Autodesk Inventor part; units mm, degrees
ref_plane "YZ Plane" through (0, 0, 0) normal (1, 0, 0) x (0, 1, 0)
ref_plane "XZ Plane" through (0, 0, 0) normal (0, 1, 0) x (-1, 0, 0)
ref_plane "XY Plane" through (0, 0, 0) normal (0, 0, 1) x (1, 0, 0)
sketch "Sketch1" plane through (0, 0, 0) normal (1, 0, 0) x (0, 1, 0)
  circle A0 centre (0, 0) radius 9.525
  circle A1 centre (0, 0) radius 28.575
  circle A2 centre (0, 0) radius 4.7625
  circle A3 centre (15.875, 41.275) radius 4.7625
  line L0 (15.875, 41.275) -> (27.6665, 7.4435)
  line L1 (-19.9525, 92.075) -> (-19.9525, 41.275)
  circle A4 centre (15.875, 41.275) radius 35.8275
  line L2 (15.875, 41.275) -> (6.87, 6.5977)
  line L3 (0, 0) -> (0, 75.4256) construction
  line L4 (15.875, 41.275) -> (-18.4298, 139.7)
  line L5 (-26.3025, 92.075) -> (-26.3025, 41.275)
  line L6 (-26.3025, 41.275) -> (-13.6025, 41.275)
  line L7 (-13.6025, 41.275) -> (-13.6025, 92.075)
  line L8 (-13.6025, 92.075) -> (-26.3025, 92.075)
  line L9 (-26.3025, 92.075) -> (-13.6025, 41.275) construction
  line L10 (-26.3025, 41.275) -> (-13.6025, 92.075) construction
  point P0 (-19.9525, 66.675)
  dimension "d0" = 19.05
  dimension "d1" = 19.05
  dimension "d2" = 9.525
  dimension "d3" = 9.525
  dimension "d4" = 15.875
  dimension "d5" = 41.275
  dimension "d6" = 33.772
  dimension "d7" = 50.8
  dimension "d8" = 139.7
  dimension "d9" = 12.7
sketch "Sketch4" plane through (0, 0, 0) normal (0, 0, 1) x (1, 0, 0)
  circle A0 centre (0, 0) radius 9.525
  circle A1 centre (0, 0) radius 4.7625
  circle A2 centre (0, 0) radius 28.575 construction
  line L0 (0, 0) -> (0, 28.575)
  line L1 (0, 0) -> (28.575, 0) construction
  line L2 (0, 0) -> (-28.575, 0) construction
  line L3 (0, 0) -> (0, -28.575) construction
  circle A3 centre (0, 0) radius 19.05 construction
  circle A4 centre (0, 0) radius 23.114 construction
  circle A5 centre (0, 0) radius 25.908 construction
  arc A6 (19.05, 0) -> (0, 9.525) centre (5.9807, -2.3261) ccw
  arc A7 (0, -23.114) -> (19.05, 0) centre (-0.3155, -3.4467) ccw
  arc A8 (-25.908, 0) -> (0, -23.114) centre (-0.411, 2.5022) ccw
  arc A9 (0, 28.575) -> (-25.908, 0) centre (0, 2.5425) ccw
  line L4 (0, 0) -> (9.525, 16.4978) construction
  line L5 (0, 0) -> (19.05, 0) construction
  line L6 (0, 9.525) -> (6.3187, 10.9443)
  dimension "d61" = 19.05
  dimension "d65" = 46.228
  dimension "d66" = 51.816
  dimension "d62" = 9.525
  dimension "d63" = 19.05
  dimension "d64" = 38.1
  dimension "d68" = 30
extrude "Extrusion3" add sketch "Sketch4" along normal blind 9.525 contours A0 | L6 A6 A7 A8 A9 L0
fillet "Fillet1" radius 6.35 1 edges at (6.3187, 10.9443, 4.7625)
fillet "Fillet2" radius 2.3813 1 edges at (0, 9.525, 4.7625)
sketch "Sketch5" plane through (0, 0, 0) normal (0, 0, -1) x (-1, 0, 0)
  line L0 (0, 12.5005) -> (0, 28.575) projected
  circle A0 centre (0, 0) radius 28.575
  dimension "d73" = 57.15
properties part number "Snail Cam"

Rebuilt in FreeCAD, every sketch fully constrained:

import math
import FreeCAD as App
import Part
import Sketcher

V = App.Vector
Q = App.Units.Quantity


def edges_at(feature, points):
    """Names of the edges that pass closest to the given points."""
    edges = feature.Shape.Edges
    near = lambda p: min(range(len(edges)), key=lambda i: edges[i].distToShape(Part.Vertex(*p))[0])
    return sorted({f"Edge{near(p) + 1}" for p in points})

doc = App.newDocument("Part")
body = doc.addObject("PartDesign::Body", "Body")

# Sketch on XY plane
sketch1 = body.newObject("Sketcher::SketchObject", "Sketch")
sketch1.AttachmentSupport = (doc.getObject("XY_Plane"), [""])
sketch1.MapMode = "FlatFace"
sketch1.addGeometry([
    Part.LineSegment(V(6.3, 10.9, 0), V(0, 9.5, 0)),  # 0
    Part.LineSegment(V(0, 9.5, 0), V(0, 28.6, 0)),  # 1
    Part.ArcOfCircle(Part.Circle(V(0, 2.5, 0), V(0, 0, 1), 26), math.radians(90), math.radians(186)),  # 2
    Part.ArcOfCircle(Part.Circle(V(-0.4, 2.5, 0), V(0, 0, 1), 25.6), math.radians(-174), math.radians(-89)),  # 3
    Part.ArcOfCircle(Part.Circle(V(-0.3, -3.4, 0), V(0, 0, 1), 19.7), math.radians(-89), math.radians(10)),  # 4
    Part.ArcOfCircle(Part.Circle(V(6, -2.3, 0), V(0, 0, 1), 13.3), math.radians(10), math.radians(89)),  # 5
    Part.Circle(V(0, 0, 0), V(0, 0, 1), 4.8),  # 6
], False)
sketch1.addConstraint([
    Sketcher.Constraint("Coincident", 0, 2, 1, 1),
    Sketcher.Constraint("Coincident", 1, 2, 2, 1),
    Sketcher.Constraint("Tangent", 2, 2, 3, 1),
    Sketcher.Constraint("Tangent", 3, 2, 4, 1),
    Sketcher.Constraint("Tangent", 4, 2, 5, 1),
    Sketcher.Constraint("Coincident", 5, 2, 0, 1),
    Sketcher.Constraint("Vertical", 1),
    Sketcher.Constraint("Coincident", 6, 3, -1, 1),
    Sketcher.Constraint("PointOnObject", 2, 3, -2),
    Sketcher.Constraint("PointOnObject", 0, 2, -2),
    Sketcher.Constraint("PointOnObject", 2, 2, -1),
    Sketcher.Constraint("PointOnObject", 3, 2, -2),
    Sketcher.Constraint("PointOnObject", 4, 2, -1),
    Sketcher.Constraint("Diameter", 6, Q("0.375 in")),
    Sketcher.Constraint("DistanceY", 1, 1, 1, 2, Q("0.75 in")),
    Sketcher.Constraint("DistanceX", -1, 1, 4, 2, Q("0.75 in")),
    Sketcher.Constraint("DistanceY", -1, 1, 0, 2, Q("0.375 in")),
    Sketcher.Constraint("Radius", 2, Q("1.0249 in")),
    Sketcher.Constraint("Radius", 4, Q("0.7744 in")),
    Sketcher.Constraint("Angle", 0, Q("-167.3404 deg")),
    Sketcher.Constraint("Radius", 5, Q("13.2747 mm")),
])
pad1 = body.newObject("PartDesign::Pad", "Pad")
pad1.Profile = sketch1
pad1.Length = Q("0.375 in")
doc.recompute()

fillet = body.newObject("PartDesign::Fillet", "Fillet")
fillet.Base = (pad1, edges_at(pad1, [(6.319, 10.944, 4.763)]))
fillet.Radius = Q("0.25 in")
doc.recompute()

fillet2 = body.newObject("PartDesign::Fillet", "Fillet001")
fillet2.Base = (fillet, edges_at(fillet, [(0, 9.525, 4.763)]))
fillet2.Radius = Q("0.093752 in")

doc.recompute()
